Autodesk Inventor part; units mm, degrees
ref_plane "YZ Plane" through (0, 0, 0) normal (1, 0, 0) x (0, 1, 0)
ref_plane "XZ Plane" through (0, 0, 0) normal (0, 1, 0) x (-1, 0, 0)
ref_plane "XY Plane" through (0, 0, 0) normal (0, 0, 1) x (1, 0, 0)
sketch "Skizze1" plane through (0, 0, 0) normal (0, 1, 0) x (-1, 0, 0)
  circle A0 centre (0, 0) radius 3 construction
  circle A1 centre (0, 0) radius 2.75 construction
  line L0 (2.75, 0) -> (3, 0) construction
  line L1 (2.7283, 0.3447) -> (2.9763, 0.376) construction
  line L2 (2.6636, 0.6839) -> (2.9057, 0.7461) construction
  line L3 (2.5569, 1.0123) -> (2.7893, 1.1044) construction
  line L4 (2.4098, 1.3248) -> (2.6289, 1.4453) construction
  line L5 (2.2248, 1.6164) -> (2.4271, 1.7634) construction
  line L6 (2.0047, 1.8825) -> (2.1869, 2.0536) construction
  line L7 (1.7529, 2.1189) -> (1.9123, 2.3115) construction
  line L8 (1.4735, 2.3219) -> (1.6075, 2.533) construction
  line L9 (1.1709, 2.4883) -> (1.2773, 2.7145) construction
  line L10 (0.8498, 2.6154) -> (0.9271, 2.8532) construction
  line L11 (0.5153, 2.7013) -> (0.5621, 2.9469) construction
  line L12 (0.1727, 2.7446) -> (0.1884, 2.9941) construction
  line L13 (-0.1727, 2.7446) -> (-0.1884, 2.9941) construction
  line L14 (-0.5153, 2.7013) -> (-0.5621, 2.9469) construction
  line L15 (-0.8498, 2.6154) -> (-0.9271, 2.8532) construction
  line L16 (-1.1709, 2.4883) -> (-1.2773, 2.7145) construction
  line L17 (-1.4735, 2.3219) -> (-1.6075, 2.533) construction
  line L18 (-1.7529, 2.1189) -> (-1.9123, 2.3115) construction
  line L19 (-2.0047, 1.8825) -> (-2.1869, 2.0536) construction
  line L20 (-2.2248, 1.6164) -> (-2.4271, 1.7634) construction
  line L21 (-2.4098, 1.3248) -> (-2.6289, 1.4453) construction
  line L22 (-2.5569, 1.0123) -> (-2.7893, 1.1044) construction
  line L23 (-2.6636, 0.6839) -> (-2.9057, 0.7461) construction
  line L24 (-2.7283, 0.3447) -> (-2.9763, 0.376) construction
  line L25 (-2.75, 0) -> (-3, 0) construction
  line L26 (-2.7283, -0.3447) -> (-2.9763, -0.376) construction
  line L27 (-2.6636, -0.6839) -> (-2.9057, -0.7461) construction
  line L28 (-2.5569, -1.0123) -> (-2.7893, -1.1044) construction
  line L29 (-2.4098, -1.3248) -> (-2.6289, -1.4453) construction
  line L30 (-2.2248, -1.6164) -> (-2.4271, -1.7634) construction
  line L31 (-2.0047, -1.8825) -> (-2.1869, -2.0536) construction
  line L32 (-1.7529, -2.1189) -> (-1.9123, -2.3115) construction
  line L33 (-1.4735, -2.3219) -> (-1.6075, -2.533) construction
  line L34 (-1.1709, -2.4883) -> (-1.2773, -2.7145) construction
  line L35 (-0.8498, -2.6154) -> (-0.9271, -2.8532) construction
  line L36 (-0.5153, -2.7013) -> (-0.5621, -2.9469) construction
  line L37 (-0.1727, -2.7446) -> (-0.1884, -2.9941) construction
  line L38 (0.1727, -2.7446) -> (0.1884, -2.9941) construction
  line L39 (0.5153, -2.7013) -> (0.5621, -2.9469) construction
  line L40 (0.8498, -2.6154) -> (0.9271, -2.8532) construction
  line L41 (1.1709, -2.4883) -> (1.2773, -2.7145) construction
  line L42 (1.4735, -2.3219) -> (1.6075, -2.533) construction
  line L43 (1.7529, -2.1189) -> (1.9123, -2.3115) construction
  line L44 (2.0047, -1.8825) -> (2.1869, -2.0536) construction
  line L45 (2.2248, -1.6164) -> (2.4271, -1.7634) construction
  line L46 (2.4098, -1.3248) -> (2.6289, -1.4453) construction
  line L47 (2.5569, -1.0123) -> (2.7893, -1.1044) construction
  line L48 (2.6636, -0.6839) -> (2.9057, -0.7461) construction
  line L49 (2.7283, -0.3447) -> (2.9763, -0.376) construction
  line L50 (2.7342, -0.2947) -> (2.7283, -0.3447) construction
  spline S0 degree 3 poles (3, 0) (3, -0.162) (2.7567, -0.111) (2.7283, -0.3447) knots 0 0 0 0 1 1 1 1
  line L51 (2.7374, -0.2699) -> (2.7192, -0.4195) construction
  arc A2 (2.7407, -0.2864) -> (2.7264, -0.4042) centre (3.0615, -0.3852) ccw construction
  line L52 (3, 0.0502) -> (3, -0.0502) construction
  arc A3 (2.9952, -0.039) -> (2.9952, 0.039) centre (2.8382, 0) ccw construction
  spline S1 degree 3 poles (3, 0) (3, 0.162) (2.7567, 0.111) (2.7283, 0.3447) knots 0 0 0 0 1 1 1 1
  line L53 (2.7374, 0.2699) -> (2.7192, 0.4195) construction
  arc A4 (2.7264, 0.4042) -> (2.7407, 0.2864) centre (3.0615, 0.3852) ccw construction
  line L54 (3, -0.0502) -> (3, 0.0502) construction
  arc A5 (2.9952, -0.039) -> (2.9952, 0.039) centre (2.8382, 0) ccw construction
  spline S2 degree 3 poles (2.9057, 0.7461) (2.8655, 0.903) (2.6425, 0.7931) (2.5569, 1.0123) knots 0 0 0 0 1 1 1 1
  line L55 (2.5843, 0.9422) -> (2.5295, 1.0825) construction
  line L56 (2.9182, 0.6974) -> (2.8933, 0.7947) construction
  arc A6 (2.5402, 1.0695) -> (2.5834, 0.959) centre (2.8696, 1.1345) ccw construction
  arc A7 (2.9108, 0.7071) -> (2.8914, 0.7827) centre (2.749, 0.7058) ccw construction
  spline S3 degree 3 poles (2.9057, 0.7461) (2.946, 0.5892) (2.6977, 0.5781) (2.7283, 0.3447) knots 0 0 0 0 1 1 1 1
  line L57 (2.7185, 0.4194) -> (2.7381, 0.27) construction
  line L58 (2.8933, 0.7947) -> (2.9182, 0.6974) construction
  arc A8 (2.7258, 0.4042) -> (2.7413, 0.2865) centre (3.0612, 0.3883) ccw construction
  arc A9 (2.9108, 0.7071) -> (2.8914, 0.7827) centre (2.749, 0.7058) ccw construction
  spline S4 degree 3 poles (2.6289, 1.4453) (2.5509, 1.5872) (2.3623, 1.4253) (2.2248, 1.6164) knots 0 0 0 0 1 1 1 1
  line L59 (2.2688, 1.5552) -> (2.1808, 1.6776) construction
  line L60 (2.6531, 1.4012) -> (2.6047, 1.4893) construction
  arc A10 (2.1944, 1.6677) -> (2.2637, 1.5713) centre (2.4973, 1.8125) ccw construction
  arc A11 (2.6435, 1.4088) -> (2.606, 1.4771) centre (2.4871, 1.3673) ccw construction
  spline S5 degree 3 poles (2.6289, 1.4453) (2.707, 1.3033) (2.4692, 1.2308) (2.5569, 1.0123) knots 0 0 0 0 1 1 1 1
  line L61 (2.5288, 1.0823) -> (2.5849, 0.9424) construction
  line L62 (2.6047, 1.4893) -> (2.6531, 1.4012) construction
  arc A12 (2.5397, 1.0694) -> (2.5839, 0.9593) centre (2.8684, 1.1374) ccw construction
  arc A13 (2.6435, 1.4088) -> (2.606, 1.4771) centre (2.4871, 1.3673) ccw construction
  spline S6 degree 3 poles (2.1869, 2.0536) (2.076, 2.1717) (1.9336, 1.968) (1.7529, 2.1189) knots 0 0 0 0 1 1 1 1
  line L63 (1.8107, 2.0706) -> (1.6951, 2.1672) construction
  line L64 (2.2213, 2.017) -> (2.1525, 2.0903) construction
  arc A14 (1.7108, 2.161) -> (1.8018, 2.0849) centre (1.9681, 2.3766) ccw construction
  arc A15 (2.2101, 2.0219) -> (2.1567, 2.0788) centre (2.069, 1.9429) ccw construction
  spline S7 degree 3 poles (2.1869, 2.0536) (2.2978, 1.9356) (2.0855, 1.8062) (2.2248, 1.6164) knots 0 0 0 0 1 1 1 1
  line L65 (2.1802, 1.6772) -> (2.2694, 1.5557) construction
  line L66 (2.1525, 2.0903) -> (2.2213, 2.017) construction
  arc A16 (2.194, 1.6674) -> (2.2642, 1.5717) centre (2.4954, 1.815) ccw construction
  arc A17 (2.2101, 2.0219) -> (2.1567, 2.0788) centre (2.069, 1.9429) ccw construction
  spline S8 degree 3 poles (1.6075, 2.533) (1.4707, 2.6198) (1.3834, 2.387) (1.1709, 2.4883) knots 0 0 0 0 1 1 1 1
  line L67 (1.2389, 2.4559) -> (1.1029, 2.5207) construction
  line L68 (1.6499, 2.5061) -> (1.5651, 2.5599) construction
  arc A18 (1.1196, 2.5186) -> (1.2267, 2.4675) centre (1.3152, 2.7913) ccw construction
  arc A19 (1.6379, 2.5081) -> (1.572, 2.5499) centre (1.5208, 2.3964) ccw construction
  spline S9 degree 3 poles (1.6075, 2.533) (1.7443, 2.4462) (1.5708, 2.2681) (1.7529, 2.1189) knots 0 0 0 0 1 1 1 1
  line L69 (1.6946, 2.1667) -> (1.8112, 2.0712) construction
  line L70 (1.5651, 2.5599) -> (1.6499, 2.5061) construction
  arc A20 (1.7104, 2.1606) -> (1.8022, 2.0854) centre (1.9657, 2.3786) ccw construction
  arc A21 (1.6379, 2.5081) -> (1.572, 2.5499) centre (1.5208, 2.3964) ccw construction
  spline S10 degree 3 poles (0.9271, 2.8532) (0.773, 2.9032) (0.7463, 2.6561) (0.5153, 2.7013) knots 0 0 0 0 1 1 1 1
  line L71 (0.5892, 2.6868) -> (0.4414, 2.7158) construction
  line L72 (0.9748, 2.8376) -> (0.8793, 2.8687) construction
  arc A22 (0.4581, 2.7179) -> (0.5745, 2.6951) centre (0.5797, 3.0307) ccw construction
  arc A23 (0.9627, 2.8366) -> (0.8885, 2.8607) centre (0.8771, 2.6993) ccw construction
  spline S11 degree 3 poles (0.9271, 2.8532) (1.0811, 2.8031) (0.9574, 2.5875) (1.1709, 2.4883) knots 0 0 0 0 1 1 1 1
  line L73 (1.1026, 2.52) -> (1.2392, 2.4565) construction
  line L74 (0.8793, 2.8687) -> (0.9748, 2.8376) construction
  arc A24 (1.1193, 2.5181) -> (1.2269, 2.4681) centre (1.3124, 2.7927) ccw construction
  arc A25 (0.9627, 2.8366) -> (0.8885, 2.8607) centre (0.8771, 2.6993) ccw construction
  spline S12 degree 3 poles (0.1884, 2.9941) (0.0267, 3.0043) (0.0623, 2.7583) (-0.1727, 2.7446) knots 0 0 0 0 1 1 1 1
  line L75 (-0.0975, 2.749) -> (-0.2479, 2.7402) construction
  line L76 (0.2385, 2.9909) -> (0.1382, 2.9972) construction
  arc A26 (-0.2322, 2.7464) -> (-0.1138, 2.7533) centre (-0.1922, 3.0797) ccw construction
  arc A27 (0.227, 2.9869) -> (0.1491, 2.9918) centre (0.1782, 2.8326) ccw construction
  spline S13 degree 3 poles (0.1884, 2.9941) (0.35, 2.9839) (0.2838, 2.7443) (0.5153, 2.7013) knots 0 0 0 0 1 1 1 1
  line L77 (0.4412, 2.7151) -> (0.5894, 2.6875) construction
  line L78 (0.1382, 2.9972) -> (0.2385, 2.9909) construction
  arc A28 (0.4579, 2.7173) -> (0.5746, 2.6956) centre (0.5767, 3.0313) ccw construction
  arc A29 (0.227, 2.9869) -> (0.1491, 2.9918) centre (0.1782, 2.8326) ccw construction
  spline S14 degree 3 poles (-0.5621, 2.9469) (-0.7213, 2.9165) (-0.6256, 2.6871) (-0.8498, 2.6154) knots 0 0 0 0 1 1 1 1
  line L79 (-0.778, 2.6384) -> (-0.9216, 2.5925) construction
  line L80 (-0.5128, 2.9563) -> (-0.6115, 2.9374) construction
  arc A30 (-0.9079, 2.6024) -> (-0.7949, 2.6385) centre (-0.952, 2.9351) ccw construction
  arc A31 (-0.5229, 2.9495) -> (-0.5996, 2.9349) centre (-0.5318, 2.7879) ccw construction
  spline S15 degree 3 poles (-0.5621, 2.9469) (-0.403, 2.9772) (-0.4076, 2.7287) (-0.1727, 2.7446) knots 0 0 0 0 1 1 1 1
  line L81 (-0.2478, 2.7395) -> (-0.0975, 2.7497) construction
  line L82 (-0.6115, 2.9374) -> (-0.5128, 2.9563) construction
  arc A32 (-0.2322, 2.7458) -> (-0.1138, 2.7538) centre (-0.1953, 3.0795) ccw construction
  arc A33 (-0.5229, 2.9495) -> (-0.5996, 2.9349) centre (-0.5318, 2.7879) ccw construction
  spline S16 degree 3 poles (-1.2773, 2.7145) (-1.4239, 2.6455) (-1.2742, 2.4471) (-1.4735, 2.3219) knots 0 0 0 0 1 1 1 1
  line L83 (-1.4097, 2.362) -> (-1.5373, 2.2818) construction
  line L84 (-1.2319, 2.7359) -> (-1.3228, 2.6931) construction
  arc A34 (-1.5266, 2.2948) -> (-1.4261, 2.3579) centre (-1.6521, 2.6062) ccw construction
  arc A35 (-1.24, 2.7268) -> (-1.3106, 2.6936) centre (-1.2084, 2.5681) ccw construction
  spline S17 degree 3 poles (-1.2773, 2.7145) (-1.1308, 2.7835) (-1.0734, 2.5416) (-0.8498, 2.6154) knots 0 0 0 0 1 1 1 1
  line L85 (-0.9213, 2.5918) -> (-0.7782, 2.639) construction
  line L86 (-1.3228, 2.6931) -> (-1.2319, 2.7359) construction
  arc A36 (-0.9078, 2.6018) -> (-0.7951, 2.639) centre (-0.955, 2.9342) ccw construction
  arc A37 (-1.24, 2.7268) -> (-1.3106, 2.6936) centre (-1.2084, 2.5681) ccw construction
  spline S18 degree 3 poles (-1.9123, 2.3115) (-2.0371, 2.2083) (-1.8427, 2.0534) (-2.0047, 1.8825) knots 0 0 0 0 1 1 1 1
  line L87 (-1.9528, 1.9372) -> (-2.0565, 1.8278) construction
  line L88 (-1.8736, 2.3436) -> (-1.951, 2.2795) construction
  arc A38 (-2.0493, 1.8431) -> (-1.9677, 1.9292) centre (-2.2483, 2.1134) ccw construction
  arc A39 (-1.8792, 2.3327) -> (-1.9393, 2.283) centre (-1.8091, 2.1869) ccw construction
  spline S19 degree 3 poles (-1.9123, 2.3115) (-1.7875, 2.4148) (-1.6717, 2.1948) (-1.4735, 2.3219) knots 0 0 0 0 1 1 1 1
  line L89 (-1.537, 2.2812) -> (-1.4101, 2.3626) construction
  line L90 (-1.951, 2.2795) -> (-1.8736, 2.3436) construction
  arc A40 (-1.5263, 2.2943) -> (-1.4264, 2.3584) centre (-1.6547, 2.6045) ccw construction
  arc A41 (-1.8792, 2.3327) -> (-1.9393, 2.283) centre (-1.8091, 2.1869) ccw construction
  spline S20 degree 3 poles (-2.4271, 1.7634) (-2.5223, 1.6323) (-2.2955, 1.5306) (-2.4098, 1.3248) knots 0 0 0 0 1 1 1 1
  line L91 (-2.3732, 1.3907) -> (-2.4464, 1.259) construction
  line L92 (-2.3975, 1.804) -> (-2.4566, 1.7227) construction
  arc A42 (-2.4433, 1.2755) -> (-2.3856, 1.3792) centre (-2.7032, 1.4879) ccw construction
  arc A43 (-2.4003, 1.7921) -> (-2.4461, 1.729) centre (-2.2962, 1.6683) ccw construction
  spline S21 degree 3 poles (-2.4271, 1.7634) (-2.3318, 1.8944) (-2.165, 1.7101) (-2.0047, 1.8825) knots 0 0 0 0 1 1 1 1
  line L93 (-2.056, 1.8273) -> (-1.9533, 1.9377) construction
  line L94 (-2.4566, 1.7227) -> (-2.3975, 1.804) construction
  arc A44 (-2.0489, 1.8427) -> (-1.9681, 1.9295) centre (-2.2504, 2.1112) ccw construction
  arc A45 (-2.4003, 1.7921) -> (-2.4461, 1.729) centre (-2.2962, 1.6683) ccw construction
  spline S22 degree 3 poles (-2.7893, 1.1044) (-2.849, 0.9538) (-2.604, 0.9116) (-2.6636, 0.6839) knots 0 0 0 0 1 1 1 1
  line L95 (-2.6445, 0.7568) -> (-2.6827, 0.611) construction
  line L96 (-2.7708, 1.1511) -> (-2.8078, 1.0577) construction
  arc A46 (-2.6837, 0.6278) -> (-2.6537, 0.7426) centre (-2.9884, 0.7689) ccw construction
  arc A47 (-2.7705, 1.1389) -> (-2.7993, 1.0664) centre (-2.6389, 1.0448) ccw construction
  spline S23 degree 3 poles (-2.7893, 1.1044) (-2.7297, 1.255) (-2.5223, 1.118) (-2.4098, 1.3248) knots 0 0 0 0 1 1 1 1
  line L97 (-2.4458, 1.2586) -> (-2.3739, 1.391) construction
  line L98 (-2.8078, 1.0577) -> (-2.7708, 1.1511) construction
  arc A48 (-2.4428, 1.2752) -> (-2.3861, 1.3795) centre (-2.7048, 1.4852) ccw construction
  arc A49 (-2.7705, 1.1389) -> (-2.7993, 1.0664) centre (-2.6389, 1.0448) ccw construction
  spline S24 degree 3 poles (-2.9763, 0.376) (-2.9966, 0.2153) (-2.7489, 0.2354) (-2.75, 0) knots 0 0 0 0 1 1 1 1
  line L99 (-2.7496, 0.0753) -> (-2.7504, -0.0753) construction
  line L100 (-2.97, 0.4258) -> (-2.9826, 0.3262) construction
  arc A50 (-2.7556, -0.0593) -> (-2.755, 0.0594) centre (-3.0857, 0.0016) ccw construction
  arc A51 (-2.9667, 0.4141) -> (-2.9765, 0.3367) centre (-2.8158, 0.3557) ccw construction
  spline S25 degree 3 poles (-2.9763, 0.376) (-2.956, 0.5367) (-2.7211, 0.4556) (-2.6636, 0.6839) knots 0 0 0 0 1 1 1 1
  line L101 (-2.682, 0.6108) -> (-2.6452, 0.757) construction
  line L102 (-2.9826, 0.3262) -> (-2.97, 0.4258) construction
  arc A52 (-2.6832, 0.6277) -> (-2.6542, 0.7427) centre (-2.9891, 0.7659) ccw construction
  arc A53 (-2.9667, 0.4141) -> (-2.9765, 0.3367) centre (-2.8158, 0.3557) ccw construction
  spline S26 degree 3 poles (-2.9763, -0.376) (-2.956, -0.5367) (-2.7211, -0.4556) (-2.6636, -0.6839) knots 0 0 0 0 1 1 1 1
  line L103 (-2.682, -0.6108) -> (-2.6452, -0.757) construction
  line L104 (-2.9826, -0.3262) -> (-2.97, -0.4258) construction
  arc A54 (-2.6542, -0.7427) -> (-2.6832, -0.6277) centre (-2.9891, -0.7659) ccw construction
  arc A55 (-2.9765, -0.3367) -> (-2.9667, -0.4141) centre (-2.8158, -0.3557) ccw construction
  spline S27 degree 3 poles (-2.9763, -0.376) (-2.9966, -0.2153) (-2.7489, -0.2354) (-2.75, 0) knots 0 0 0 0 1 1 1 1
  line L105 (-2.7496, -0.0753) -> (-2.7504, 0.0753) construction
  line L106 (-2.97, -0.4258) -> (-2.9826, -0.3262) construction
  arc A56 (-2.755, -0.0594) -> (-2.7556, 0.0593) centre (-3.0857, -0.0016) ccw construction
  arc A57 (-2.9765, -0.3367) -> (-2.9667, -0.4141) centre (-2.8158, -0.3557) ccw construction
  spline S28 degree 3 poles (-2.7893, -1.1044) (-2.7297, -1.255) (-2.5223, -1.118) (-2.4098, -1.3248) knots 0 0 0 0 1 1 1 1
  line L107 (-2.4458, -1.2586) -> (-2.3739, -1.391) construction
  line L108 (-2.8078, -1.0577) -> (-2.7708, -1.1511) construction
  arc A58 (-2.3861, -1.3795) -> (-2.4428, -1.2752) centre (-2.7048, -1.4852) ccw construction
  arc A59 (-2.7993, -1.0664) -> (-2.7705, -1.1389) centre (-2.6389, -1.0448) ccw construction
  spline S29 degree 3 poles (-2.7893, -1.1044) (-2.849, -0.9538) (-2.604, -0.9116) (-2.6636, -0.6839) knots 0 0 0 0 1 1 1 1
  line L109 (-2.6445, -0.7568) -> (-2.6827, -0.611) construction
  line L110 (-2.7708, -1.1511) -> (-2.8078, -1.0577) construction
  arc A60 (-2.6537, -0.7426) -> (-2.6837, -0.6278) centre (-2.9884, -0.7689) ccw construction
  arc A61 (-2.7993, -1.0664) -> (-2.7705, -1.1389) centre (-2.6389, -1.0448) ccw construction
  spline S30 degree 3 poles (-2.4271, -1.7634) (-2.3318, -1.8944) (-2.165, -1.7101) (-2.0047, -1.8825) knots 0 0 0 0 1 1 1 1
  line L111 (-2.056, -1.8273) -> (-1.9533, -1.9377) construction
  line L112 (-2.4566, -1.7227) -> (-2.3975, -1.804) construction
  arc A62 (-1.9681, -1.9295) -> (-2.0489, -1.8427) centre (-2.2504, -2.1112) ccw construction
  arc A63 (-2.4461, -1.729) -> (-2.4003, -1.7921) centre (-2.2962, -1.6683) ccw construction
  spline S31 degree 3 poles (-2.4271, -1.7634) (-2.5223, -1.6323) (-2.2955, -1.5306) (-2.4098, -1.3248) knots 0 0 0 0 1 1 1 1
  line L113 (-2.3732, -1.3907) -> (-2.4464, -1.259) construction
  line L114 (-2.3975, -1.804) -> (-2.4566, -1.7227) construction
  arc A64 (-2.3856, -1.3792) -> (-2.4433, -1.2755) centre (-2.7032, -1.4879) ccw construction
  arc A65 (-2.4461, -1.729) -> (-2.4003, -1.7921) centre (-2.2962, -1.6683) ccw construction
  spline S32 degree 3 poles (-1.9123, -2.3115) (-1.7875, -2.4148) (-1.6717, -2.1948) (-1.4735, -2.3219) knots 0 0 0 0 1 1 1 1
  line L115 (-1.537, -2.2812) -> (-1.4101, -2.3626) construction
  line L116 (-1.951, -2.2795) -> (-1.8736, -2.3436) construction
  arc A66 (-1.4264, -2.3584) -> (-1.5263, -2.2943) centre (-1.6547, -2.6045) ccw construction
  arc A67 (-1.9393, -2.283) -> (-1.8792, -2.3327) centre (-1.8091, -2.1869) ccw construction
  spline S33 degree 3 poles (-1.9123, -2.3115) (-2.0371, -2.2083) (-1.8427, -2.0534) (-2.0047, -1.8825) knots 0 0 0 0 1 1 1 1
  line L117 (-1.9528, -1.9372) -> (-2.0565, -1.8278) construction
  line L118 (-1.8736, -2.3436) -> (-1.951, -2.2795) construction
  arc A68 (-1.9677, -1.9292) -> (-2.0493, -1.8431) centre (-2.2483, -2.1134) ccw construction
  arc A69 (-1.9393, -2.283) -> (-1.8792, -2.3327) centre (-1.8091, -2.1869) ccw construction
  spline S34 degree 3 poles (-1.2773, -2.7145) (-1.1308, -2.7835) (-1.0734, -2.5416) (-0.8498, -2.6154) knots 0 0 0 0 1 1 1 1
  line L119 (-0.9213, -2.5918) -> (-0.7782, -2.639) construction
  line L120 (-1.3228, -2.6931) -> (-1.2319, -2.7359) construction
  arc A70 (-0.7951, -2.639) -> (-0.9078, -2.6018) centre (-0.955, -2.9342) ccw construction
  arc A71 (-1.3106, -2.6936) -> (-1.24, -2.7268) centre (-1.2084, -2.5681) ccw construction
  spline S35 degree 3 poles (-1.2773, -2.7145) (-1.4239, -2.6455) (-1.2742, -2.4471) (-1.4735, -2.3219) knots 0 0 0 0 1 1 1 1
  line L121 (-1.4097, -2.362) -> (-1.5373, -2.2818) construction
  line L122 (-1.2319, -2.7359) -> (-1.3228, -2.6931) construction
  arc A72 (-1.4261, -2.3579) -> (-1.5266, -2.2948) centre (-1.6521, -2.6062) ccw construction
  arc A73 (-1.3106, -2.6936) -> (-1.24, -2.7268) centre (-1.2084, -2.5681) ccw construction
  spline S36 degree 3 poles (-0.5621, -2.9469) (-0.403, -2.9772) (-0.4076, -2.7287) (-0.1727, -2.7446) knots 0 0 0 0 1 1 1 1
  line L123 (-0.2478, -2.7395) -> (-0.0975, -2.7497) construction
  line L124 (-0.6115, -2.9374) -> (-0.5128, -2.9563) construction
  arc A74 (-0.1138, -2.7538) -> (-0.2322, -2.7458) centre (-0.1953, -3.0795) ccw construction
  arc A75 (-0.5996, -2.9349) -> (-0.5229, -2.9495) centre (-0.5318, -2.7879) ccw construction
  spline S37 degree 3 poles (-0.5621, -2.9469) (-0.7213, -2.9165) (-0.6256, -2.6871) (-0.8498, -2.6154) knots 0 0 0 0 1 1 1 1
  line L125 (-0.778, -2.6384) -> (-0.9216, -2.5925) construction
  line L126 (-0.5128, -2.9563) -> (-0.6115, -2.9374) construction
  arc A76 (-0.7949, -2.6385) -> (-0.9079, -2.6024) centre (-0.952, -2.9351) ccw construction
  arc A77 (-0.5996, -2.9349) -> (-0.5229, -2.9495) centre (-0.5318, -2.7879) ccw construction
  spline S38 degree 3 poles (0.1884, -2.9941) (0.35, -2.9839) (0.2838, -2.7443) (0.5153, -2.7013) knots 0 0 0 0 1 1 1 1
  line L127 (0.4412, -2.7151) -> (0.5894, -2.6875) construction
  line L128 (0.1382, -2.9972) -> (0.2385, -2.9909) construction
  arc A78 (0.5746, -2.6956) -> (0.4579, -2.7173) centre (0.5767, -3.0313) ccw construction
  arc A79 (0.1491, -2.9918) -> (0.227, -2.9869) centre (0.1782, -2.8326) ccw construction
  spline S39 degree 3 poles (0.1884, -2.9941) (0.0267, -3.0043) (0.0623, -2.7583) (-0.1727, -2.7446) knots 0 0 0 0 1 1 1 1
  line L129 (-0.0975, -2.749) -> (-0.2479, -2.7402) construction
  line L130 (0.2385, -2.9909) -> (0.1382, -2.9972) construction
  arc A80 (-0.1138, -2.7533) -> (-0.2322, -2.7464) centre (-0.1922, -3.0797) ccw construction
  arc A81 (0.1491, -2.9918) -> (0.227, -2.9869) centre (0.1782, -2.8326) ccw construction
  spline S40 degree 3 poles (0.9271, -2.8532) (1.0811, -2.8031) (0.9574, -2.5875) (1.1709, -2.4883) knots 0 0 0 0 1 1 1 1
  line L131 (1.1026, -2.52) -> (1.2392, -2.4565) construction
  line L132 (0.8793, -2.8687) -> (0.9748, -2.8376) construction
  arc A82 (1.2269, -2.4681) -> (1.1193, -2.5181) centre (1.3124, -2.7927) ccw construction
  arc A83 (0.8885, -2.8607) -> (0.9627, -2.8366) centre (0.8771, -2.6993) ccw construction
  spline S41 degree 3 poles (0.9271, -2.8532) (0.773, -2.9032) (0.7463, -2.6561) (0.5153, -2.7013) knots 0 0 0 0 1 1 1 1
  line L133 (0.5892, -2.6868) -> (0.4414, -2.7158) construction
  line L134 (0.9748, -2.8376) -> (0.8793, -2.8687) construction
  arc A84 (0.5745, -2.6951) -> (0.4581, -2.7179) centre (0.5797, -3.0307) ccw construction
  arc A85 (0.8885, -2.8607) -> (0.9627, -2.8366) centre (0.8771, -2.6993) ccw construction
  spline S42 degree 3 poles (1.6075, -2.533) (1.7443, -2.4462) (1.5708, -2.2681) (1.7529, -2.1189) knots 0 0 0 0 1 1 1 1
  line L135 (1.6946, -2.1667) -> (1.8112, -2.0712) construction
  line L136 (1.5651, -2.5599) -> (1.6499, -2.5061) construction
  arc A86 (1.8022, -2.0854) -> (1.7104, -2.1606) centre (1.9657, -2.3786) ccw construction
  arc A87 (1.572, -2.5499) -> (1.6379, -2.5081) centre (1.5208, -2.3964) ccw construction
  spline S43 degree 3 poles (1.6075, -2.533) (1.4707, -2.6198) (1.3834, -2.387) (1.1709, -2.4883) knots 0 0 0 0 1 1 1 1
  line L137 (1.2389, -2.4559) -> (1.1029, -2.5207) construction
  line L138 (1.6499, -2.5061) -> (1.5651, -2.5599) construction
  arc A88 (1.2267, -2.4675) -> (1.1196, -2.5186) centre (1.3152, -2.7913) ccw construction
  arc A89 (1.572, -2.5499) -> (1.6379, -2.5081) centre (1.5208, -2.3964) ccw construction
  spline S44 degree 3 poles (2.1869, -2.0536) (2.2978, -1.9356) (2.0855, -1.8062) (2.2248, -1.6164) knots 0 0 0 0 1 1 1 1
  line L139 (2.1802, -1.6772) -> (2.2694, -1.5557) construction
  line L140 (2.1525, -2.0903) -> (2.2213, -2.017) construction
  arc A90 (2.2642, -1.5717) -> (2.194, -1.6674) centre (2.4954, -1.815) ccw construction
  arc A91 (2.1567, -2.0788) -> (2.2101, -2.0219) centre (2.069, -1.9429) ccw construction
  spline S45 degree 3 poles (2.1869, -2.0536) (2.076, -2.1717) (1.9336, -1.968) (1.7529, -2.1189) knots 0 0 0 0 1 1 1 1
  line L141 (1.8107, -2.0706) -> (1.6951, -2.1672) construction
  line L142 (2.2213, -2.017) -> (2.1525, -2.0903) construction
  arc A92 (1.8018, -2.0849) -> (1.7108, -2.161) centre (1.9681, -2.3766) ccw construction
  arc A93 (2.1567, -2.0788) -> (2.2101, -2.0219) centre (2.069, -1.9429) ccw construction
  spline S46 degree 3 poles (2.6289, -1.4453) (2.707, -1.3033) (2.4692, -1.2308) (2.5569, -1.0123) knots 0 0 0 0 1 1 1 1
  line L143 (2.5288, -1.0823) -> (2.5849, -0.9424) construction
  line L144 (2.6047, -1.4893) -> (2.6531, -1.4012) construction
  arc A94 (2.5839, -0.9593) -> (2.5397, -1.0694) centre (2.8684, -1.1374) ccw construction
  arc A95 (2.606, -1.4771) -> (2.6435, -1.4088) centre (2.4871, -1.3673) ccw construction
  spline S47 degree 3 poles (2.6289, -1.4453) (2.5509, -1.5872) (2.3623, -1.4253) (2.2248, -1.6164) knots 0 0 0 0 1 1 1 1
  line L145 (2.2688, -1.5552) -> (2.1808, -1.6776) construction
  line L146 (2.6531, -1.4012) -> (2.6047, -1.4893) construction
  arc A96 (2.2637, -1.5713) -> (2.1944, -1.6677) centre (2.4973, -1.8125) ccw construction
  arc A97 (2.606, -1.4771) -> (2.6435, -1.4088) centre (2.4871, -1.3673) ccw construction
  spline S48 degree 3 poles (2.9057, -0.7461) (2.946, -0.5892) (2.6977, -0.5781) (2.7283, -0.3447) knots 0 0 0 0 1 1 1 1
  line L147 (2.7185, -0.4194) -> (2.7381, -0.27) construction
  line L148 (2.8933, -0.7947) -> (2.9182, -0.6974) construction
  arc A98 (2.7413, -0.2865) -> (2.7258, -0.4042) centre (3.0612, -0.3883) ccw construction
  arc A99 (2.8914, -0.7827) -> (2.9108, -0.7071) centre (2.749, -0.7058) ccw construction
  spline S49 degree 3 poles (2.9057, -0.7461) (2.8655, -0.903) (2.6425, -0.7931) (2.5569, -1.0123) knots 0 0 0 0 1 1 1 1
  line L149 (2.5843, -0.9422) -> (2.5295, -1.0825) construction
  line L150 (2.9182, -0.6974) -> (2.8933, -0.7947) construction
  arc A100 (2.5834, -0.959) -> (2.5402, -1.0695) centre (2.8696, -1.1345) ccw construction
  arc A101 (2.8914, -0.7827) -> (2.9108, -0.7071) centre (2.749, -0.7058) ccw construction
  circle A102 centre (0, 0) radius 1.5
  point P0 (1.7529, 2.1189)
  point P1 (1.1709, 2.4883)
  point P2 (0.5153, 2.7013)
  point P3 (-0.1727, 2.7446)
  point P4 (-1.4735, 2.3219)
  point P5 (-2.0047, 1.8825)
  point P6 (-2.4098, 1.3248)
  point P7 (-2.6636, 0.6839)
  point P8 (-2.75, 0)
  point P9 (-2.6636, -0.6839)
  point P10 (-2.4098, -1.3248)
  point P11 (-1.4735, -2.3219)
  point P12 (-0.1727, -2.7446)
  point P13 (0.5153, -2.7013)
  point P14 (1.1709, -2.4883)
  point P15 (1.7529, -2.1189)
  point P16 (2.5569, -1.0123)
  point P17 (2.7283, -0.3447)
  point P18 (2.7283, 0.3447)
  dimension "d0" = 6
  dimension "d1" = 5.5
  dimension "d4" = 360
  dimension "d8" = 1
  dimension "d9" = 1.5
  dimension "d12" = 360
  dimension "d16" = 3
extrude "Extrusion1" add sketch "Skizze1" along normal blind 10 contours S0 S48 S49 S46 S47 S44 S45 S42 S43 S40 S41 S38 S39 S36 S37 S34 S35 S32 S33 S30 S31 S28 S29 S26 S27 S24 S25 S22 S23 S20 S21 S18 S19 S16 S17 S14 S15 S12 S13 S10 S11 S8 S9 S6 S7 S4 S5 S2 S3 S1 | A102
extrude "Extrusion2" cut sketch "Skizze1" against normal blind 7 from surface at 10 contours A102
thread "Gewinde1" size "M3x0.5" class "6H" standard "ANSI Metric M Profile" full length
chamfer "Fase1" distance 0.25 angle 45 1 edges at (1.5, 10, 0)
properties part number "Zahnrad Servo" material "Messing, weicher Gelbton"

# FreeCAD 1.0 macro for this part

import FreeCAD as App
import Part
import Sketcher
from FreeCAD import Vector


def edges_at(feature, points):
    """Names of the edges that pass closest to the given points."""
    edges = feature.Shape.Edges
    near = lambda p: min(range(len(edges)), key=lambda i: edges[i].distToShape(Part.Vertex(*p))[0])
    return sorted({f"Edge{near(p) + 1}" for p in points})

doc = App.newDocument("Part")
body = doc.addObject("PartDesign::Body", "Body")

# Sketch on XZ plane
sketch1 = doc.addObject("Sketcher::SketchObject", "Sketch")
body.addObject(sketch1)
sketch1.AttachmentSupport = (doc.XZ_Plane, [""])
sketch1.MapMode = "FlatFace"
sketch1.addGeometry([
    Part.BSplineCurve([Vector(-3, 0, 0), Vector(-3, -0.162, 0), Vector(-2.7567, -0.111, 0), Vector(-2.7283, -0.3447, 0)], [4, 4], [0, 1], False, 3, [1, 1, 1, 1], False),  # 0
    Part.BSplineCurve([Vector(-3, 0, 0), Vector(-3, 0.162, 0), Vector(-2.7567, 0.111, 0), Vector(-2.7283, 0.3447, 0)], [4, 4], [0, 1], False, 3, [1, 1, 1, 1], False),  # 1
    Part.BSplineCurve([Vector(-2.9057, 0.7461, 0), Vector(-2.946, 0.5892, 0), Vector(-2.6977, 0.5781, 0), Vector(-2.7283, 0.3447, 0)], [4, 4], [0, 1], False, 3, [1, 1, 1, 1], False),  # 2
    Part.BSplineCurve([Vector(-2.9057, 0.7461, 0), Vector(-2.8655, 0.903, 0), Vector(-2.6425, 0.7931, 0), Vector(-2.5569, 1.0123, 0)], [4, 4], [0, 1], False, 3, [1, 1, 1, 1], False),  # 3
    Part.BSplineCurve([Vector(-2.6289, 1.4453, 0), Vector(-2.707, 1.3033, 0), Vector(-2.4692, 1.2308, 0), Vector(-2.5569, 1.0123, 0)], [4, 4], [0, 1], False, 3, [1, 1, 1, 1], False),  # 4
    Part.BSplineCurve([Vector(-2.6289, 1.4453, 0), Vector(-2.5509, 1.5872, 0), Vector(-2.3623, 1.4253, 0), Vector(-2.2248, 1.6164, 0)], [4, 4], [0, 1], False, 3, [1, 1, 1, 1], False),  # 5
    Part.BSplineCurve([Vector(-2.1869, 2.0536, 0), Vector(-2.2978, 1.9356, 0), Vector(-2.0855, 1.8062, 0), Vector(-2.2248, 1.6164, 0)], [4, 4], [0, 1], False, 3, [1, 1, 1, 1], False),  # 6
    Part.BSplineCurve([Vector(-2.1869, 2.0536, 0), Vector(-2.076, 2.1717, 0), Vector(-1.9336, 1.968, 0), Vector(-1.7529, 2.1189, 0)], [4, 4], [0, 1], False, 3, [1, 1, 1, 1], False),  # 7
    Part.BSplineCurve([Vector(-1.6075, 2.533, 0), Vector(-1.7443, 2.4462, 0), Vector(-1.5708, 2.2681, 0), Vector(-1.7529, 2.1189, 0)], [4, 4], [0, 1], False, 3, [1, 1, 1, 1], False),  # 8
    Part.BSplineCurve([Vector(-1.6075, 2.533, 0), Vector(-1.4707, 2.6198, 0), Vector(-1.3834, 2.387, 0), Vector(-1.1709, 2.4883, 0)], [4, 4], [0, 1], False, 3, [1, 1, 1, 1], False),  # 9
    Part.BSplineCurve([Vector(-0.9271, 2.8532, 0), Vector(-1.0811, 2.8031, 0), Vector(-0.9574, 2.5875, 0), Vector(-1.1709, 2.4883, 0)], [4, 4], [0, 1], False, 3, [1, 1, 1, 1], False),  # 10
    Part.BSplineCurve([Vector(-0.9271, 2.8532, 0), Vector(-0.773, 2.9032, 0), Vector(-0.7463, 2.6561, 0), Vector(-0.5153, 2.7013, 0)], [4, 4], [0, 1], False, 3, [1, 1, 1, 1], False),  # 11
    Part.BSplineCurve([Vector(-0.1884, 2.9941, 0), Vector(-0.35, 2.9839, 0), Vector(-0.2838, 2.7443, 0), Vector(-0.5153, 2.7013, 0)], [4, 4], [0, 1], False, 3, [1, 1, 1, 1], False),  # 12
    Part.BSplineCurve([Vector(-0.1884, 2.9941, 0), Vector(-0.0267, 3.0043, 0), Vector(-0.0623, 2.7583, 0), Vector(0.1727, 2.7446, 0)], [4, 4], [0, 1], False, 3, [1, 1, 1, 1], False),  # 13
    Part.BSplineCurve([Vector(0.5621, 2.9469, 0), Vector(0.403, 2.9772, 0), Vector(0.4076, 2.7287, 0), Vector(0.1727, 2.7446, 0)], [4, 4], [0, 1], False, 3, [1, 1, 1, 1], False),  # 14
    Part.BSplineCurve([Vector(0.5621, 2.9469, 0), Vector(0.7213, 2.9165, 0), Vector(0.6256, 2.6871, 0), Vector(0.8498, 2.6154, 0)], [4, 4], [0, 1], False, 3, [1, 1, 1, 1], False),  # 15
    Part.BSplineCurve([Vector(1.2773, 2.7145, 0), Vector(1.1308, 2.7835, 0), Vector(1.0734, 2.5416, 0), Vector(0.8498, 2.6154, 0)], [4, 4], [0, 1], False, 3, [1, 1, 1, 1], False),  # 16
    Part.BSplineCurve([Vector(1.2773, 2.7145, 0), Vector(1.4239, 2.6455, 0), Vector(1.2742, 2.4471, 0), Vector(1.4735, 2.3219, 0)], [4, 4], [0, 1], False, 3, [1, 1, 1, 1], False),  # 17
    Part.BSplineCurve([Vector(1.9123, 2.3115, 0), Vector(1.7875, 2.4148, 0), Vector(1.6717, 2.1948, 0), Vector(1.4735, 2.3219, 0)], [4, 4], [0, 1], False, 3, [1, 1, 1, 1], False),  # 18
    Part.BSplineCurve([Vector(1.9123, 2.3115, 0), Vector(2.0371, 2.2083, 0), Vector(1.8427, 2.0534, 0), Vector(2.0047, 1.8825, 0)], [4, 4], [0, 1], False, 3, [1, 1, 1, 1], False),  # 19
    Part.BSplineCurve([Vector(2.4271, 1.7634, 0), Vector(2.3318, 1.8944, 0), Vector(2.165, 1.7101, 0), Vector(2.0047, 1.8825, 0)], [4, 4], [0, 1], False, 3, [1, 1, 1, 1], False),  # 20
    Part.BSplineCurve([Vector(2.4271, 1.7634, 0), Vector(2.5223, 1.6323, 0), Vector(2.2955, 1.5306, 0), Vector(2.4098, 1.3248, 0)], [4, 4], [0, 1], False, 3, [1, 1, 1, 1], False),  # 21
    Part.BSplineCurve([Vector(2.7893, 1.1044, 0), Vector(2.7297, 1.255, 0), Vector(2.5223, 1.118, 0), Vector(2.4098, 1.3248, 0)], [4, 4], [0, 1], False, 3, [1, 1, 1, 1], False),  # 22
    Part.BSplineCurve([Vector(2.7893, 1.1044, 0), Vector(2.849, 0.9538, 0), Vector(2.604, 0.9116, 0), Vector(2.6636, 0.6839, 0)], [4, 4], [0, 1], False, 3, [1, 1, 1, 1], False),  # 23
    Part.BSplineCurve([Vector(2.9763, 0.376, 0), Vector(2.956, 0.5367, 0), Vector(2.7211, 0.4556, 0), Vector(2.6636, 0.6839, 0)], [4, 4], [0, 1], False, 3, [1, 1, 1, 1], False),  # 24
    Part.BSplineCurve([Vector(2.9763, 0.376, 0), Vector(2.9966, 0.2153, 0), Vector(2.7489, 0.2354, 0), Vector(2.75, 0, 0)], [4, 4], [0, 1], False, 3, [1, 1, 1, 1], False),  # 25
    Part.BSplineCurve([Vector(2.9763, -0.376, 0), Vector(2.9966, -0.2153, 0), Vector(2.7489, -0.2354, 0), Vector(2.75, 0, 0)], [4, 4], [0, 1], False, 3, [1, 1, 1, 1], False),  # 26
    Part.BSplineCurve([Vector(2.9763, -0.376, 0), Vector(2.956, -0.5367, 0), Vector(2.7211, -0.4556, 0), Vector(2.6636, -0.6839, 0)], [4, 4], [0, 1], False, 3, [1, 1, 1, 1], False),  # 27
    Part.BSplineCurve([Vector(2.7893, -1.1044, 0), Vector(2.849, -0.9538, 0), Vector(2.604, -0.9116, 0), Vector(2.6636, -0.6839, 0)], [4, 4], [0, 1], False, 3, [1, 1, 1, 1], False),  # 28
    Part.BSplineCurve([Vector(2.7893, -1.1044, 0), Vector(2.7297, -1.255, 0), Vector(2.5223, -1.118, 0), Vector(2.4098, -1.3248, 0)], [4, 4], [0, 1], False, 3, [1, 1, 1, 1], False),  # 29
    Part.BSplineCurve([Vector(2.4271, -1.7634, 0), Vector(2.5223, -1.6323, 0), Vector(2.2955, -1.5306, 0), Vector(2.4098, -1.3248, 0)], [4, 4], [0, 1], False, 3, [1, 1, 1, 1], False),  # 30
    Part.BSplineCurve([Vector(2.4271, -1.7634, 0), Vector(2.3318, -1.8944, 0), Vector(2.165, -1.7101, 0), Vector(2.0047, -1.8825, 0)], [4, 4], [0, 1], False, 3, [1, 1, 1, 1], False),  # 31
    Part.BSplineCurve([Vector(1.9123, -2.3115, 0), Vector(2.0371, -2.2083, 0), Vector(1.8427, -2.0534, 0), Vector(2.0047, -1.8825, 0)], [4, 4], [0, 1], False, 3, [1, 1, 1, 1], False),  # 32
    Part.BSplineCurve([Vector(1.9123, -2.3115, 0), Vector(1.7875, -2.4148, 0), Vector(1.6717, -2.1948, 0), Vector(1.4735, -2.3219, 0)], [4, 4], [0, 1], False, 3, [1, 1, 1, 1], False),  # 33
    Part.BSplineCurve([Vector(1.2773, -2.7145, 0), Vector(1.4239, -2.6455, 0), Vector(1.2742, -2.4471, 0), Vector(1.4735, -2.3219, 0)], [4, 4], [0, 1], False, 3, [1, 1, 1, 1], False),  # 34
    Part.BSplineCurve([Vector(1.2773, -2.7145, 0), Vector(1.1308, -2.7835, 0), Vector(1.0734, -2.5416, 0), Vector(0.8498, -2.6154, 0)], [4, 4], [0, 1], False, 3, [1, 1, 1, 1], False),  # 35
    Part.BSplineCurve([Vector(0.5621, -2.9469, 0), Vector(0.7213, -2.9165, 0), Vector(0.6256, -2.6871, 0), Vector(0.8498, -2.6154, 0)], [4, 4], [0, 1], False, 3, [1, 1, 1, 1], False),  # 36
    Part.BSplineCurve([Vector(0.5621, -2.9469, 0), Vector(0.403, -2.9772, 0), Vector(0.4076, -2.7287, 0), Vector(0.1727, -2.7446, 0)], [4, 4], [0, 1], False, 3, [1, 1, 1, 1], False),  # 37
    Part.BSplineCurve([Vector(-0.1884, -2.9941, 0), Vector(-0.0267, -3.0043, 0), Vector(-0.0623, -2.7583, 0), Vector(0.1727, -2.7446, 0)], [4, 4], [0, 1], False, 3, [1, 1, 1, 1], False),  # 38
    Part.BSplineCurve([Vector(-0.1884, -2.9941, 0), Vector(-0.35, -2.9839, 0), Vector(-0.2838, -2.7443, 0), Vector(-0.5153, -2.7013, 0)], [4, 4], [0, 1], False, 3, [1, 1, 1, 1], False),  # 39
    Part.BSplineCurve([Vector(-0.9271, -2.8532, 0), Vector(-0.773, -2.9032, 0), Vector(-0.7463, -2.6561, 0), Vector(-0.5153, -2.7013, 0)], [4, 4], [0, 1], False, 3, [1, 1, 1, 1], False),  # 40
    Part.BSplineCurve([Vector(-0.9271, -2.8532, 0), Vector(-1.0811, -2.8031, 0), Vector(-0.9574, -2.5875, 0), Vector(-1.1709, -2.4883, 0)], [4, 4], [0, 1], False, 3, [1, 1, 1, 1], False),  # 41
    Part.BSplineCurve([Vector(-1.6075, -2.533, 0), Vector(-1.4707, -2.6198, 0), Vector(-1.3834, -2.387, 0), Vector(-1.1709, -2.4883, 0)], [4, 4], [0, 1], False, 3, [1, 1, 1, 1], False),  # 42
    Part.BSplineCurve([Vector(-1.6075, -2.533, 0), Vector(-1.7443, -2.4462, 0), Vector(-1.5708, -2.2681, 0), Vector(-1.7529, -2.1189, 0)], [4, 4], [0, 1], False, 3, [1, 1, 1, 1], False),  # 43
    Part.BSplineCurve([Vector(-2.1869, -2.0536, 0), Vector(-2.076, -2.1717, 0), Vector(-1.9336, -1.968, 0), Vector(-1.7529, -2.1189, 0)], [4, 4], [0, 1], False, 3, [1, 1, 1, 1], False),  # 44
    Part.BSplineCurve([Vector(-2.1869, -2.0536, 0), Vector(-2.2978, -1.9356, 0), Vector(-2.0855, -1.8062, 0), Vector(-2.2248, -1.6164, 0)], [4, 4], [0, 1], False, 3, [1, 1, 1, 1], False),  # 45
    Part.BSplineCurve([Vector(-2.6289, -1.4453, 0), Vector(-2.5509, -1.5872, 0), Vector(-2.3623, -1.4253, 0), Vector(-2.2248, -1.6164, 0)], [4, 4], [0, 1], False, 3, [1, 1, 1, 1], False),  # 46
    Part.BSplineCurve([Vector(-2.6289, -1.4453, 0), Vector(-2.707, -1.3033, 0), Vector(-2.4692, -1.2308, 0), Vector(-2.5569, -1.0123, 0)], [4, 4], [0, 1], False, 3, [1, 1, 1, 1], False),  # 47
    Part.BSplineCurve([Vector(-2.9057, -0.7461, 0), Vector(-2.8655, -0.903, 0), Vector(-2.6425, -0.7931, 0), Vector(-2.5569, -1.0123, 0)], [4, 4], [0, 1], False, 3, [1, 1, 1, 1], False),  # 48
    Part.BSplineCurve([Vector(-2.9057, -0.7461, 0), Vector(-2.946, -0.5892, 0), Vector(-2.6977, -0.5781, 0), Vector(-2.7283, -0.3447, 0)], [4, 4], [0, 1], False, 3, [1, 1, 1, 1], False),  # 49
], False)
sketch1.addConstraint([
    Sketcher.Constraint("Block", 0),
    Sketcher.Constraint("Block", 1),
    Sketcher.Constraint("Block", 2),
    Sketcher.Constraint("Block", 3),
    Sketcher.Constraint("Block", 4),
    Sketcher.Constraint("Block", 5),
    Sketcher.Constraint("Block", 6),
    Sketcher.Constraint("Block", 7),
    Sketcher.Constraint("Block", 8),
    Sketcher.Constraint("Block", 9),
    Sketcher.Constraint("Block", 10),
    Sketcher.Constraint("Block", 11),
    Sketcher.Constraint("Block", 12),
    Sketcher.Constraint("Block", 13),
    Sketcher.Constraint("Block", 14),
    Sketcher.Constraint("Block", 15),
    Sketcher.Constraint("Block", 16),
    Sketcher.Constraint("Block", 17),
    Sketcher.Constraint("Block", 18),
    Sketcher.Constraint("Block", 19),
    Sketcher.Constraint("Block", 20),
    Sketcher.Constraint("Block", 21),
    Sketcher.Constraint("Block", 22),
    Sketcher.Constraint("Block", 23),
    Sketcher.Constraint("Block", 24),
    Sketcher.Constraint("Block", 25),
    Sketcher.Constraint("Block", 26),
    Sketcher.Constraint("Block", 27),
    Sketcher.Constraint("Block", 28),
    Sketcher.Constraint("Block", 29),
    Sketcher.Constraint("Block", 30),
    Sketcher.Constraint("Block", 31),
    Sketcher.Constraint("Block", 32),
    Sketcher.Constraint("Block", 33),
    Sketcher.Constraint("Block", 34),
    Sketcher.Constraint("Block", 35),
    Sketcher.Constraint("Block", 36),
    Sketcher.Constraint("Block", 37),
    Sketcher.Constraint("Block", 38),
    Sketcher.Constraint("Block", 39),
    Sketcher.Constraint("Block", 40),
    Sketcher.Constraint("Block", 41),
    Sketcher.Constraint("Block", 42),
    Sketcher.Constraint("Block", 43),
    Sketcher.Constraint("Block", 44),
    Sketcher.Constraint("Block", 45),
    Sketcher.Constraint("Block", 46),
    Sketcher.Constraint("Block", 47),
    Sketcher.Constraint("Block", 48),
    Sketcher.Constraint("Block", 49),
])
pad1 = doc.addObject("PartDesign::Pad", "Pad")
body.addObject(pad1)
pad1.Profile = sketch1
pad1.Length = 10
pad1.Reversed = True

# Sketch on XZ plane
sketch2 = doc.addObject("Sketcher::SketchObject", "Sketch001")
body.addObject(sketch2)
sketch2.AttachmentSupport = (doc.XZ_Plane, [""])
sketch2.MapMode = "FlatFace"
sketch2.AttachmentOffset = App.Placement(Vector(0, 0, -10), App.Rotation())
sketch2.addGeometry(Part.Circle(Vector(0, 0, 0), Vector(0, 0, 1), 1.5), False)
sketch2.addConstraint([
    Sketcher.Constraint("Coincident", 0, 3, -1, 1),
    Sketcher.Constraint("Diameter", 0, 3.0),
])
pocket1 = doc.addObject("PartDesign::Pocket", "Pocket")
body.addObject(pocket1)
pocket1.Profile = sketch2
pocket1.Length = 7
pocket1.Reversed = True
doc.recompute()

chamfer = doc.addObject("PartDesign::Chamfer", "Chamfer")
body.addObject(chamfer)
chamfer.Base = (pocket1, edges_at(pocket1, [(1.5, 10, 0)]))
chamfer.Size = 0.25

doc.recompute()
